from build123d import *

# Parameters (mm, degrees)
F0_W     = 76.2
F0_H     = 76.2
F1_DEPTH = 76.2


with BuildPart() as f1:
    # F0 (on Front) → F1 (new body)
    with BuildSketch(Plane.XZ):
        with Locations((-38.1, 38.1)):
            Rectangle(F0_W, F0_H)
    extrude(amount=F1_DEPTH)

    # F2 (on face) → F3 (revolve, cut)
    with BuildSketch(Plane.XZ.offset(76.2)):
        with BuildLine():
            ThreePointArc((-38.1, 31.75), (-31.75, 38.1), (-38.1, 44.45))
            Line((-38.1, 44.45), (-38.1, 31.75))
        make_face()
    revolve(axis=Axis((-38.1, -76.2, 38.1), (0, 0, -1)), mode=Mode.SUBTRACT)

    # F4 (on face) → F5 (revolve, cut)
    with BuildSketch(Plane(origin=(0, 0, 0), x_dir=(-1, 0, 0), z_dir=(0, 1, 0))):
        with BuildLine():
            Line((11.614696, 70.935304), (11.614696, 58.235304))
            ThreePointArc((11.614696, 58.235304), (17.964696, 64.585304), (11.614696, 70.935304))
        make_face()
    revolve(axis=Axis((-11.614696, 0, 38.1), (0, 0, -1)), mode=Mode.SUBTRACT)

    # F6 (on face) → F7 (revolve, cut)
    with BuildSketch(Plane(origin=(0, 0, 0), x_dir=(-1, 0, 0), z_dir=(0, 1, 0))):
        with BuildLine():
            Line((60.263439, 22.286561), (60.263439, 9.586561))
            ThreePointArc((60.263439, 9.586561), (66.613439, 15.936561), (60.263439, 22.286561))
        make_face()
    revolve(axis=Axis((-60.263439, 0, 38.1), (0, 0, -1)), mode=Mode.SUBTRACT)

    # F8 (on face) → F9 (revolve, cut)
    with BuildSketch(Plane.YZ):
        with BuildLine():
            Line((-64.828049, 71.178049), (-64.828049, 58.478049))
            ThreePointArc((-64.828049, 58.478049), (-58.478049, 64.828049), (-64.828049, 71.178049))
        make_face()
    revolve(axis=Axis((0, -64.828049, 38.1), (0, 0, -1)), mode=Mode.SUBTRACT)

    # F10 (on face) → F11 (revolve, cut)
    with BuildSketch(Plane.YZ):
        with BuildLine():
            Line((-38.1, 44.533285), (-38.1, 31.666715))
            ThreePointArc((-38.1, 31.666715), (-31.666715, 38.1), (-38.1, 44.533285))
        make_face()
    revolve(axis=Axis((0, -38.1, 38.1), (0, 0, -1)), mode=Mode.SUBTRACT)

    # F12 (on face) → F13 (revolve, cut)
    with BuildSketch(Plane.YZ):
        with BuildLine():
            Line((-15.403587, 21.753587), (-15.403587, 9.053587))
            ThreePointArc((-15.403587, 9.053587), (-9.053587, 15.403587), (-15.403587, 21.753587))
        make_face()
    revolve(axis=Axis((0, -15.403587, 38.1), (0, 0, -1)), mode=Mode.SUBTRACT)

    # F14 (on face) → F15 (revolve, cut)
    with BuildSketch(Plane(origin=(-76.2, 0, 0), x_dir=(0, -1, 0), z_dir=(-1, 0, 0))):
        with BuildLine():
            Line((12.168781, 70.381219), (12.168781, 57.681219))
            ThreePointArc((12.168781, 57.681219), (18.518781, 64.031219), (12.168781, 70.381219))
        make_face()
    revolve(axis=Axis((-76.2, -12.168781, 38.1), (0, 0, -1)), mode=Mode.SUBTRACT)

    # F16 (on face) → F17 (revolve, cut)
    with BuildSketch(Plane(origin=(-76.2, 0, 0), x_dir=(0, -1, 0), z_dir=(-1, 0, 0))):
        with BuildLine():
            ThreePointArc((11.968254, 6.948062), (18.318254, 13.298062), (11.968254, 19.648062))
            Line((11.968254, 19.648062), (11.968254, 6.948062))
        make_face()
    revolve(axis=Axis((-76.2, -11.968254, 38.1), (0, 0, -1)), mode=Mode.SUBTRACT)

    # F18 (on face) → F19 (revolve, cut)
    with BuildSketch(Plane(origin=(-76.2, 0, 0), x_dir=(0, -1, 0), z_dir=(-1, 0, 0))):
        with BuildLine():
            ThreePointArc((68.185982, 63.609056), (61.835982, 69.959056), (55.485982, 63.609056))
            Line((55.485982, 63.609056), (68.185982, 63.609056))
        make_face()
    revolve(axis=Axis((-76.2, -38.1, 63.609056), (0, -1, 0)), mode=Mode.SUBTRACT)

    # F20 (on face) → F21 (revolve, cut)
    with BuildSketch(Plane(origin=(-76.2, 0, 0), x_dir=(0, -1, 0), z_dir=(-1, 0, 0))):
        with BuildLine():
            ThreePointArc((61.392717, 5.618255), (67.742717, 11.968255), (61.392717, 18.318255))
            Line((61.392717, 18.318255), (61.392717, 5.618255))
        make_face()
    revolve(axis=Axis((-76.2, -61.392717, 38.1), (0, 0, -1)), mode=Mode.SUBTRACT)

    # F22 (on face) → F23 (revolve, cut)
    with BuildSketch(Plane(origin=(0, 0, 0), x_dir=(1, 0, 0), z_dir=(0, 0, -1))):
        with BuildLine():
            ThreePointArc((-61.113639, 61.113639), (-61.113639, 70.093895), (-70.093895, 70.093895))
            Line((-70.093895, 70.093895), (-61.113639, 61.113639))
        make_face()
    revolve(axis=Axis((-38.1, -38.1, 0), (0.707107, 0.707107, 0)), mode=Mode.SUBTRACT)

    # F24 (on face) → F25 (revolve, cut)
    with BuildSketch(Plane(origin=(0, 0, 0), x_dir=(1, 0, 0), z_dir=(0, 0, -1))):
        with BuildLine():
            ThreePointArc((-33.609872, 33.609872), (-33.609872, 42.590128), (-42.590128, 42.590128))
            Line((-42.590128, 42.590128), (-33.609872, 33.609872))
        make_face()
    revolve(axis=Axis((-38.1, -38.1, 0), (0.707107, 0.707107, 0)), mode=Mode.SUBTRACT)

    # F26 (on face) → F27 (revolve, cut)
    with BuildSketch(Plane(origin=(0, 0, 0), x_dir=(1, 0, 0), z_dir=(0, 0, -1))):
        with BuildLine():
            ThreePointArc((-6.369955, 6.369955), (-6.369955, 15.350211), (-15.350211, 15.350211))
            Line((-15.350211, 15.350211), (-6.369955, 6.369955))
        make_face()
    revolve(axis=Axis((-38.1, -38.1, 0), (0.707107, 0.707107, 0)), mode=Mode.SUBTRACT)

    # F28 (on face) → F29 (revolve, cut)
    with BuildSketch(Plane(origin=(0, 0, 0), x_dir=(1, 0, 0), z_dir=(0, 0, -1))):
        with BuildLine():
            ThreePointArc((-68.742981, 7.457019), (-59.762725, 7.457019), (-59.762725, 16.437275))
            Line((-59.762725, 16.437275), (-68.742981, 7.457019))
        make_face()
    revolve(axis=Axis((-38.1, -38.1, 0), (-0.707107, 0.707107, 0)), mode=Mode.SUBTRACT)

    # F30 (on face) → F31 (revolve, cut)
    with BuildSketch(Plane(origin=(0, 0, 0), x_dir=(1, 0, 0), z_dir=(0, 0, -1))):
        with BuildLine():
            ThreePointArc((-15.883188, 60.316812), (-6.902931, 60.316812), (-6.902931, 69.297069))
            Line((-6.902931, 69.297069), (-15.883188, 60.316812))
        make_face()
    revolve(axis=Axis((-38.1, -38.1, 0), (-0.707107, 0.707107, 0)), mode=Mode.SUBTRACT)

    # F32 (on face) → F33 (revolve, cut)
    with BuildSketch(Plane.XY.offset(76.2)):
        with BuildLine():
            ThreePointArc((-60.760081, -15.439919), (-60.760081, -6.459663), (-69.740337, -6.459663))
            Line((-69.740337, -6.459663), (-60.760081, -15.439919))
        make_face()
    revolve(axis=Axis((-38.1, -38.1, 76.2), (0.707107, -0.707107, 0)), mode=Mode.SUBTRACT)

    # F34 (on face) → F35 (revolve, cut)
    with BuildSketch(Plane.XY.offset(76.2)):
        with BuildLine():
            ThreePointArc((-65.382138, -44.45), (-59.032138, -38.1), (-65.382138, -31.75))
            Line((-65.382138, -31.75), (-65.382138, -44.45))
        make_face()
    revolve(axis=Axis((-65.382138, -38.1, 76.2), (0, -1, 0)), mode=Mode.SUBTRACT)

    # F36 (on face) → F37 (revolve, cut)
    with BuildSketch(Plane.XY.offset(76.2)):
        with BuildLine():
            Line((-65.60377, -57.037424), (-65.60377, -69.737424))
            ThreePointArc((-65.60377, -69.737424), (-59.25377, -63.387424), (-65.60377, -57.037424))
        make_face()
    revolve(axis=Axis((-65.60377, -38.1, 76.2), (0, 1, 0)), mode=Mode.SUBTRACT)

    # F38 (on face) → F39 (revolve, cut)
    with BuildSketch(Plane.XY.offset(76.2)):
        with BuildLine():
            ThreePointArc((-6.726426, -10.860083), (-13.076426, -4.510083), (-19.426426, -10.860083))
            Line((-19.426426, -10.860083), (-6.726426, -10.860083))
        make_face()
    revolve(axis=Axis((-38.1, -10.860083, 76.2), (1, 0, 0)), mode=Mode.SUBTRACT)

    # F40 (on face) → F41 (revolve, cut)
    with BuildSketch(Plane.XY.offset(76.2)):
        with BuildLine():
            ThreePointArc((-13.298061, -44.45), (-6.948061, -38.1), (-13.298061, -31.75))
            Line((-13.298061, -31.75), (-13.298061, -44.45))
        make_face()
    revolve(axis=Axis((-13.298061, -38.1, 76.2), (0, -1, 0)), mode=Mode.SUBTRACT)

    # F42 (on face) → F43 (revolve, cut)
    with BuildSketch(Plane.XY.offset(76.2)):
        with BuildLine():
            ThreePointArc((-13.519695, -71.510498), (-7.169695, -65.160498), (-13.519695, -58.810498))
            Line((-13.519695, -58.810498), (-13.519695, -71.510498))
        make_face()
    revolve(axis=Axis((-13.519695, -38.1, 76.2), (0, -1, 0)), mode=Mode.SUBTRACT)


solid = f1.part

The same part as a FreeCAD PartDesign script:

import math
import FreeCAD as App
import Part
import Sketcher
Q = App.Units.Quantity


def add_polygon(sketch, points):
    """Adds a closed chain of lines whose ends are joined by coincident constraints."""
    first, n = sketch.GeometryCount, len(points)
    for a, b in zip(points, points[1:] + points[:1]):
        sketch.addGeometry(Part.LineSegment(App.Vector(*a, 0), App.Vector(*b, 0)), False)
    for i in range(n):
        sketch.addConstraint(Sketcher.Constraint("Coincident", first + i, 2, first + (i + 1) % n, 1))

doc = App.newDocument("Part")
body = doc.addObject("PartDesign::Body", "Body")

sketch1 = body.newObject("Sketcher::SketchObject", "Sketch")
sketch1.AttachmentSupport = (doc.getObject("XZ_Plane"), [""])
sketch1.MapMode = "FlatFace"
add_polygon(sketch1, [(-76, 76), (-76, 0), (0, 0), (0, 76)])
sketch1.addConstraint(Sketcher.Constraint("Vertical", 0))
sketch1.addConstraint(Sketcher.Constraint("Horizontal", 1))
sketch1.addConstraint(Sketcher.Constraint("Vertical", 2))
sketch1.addConstraint(Sketcher.Constraint("Horizontal", 3))
sketch1.addConstraint(Sketcher.Constraint("Coincident", 1, 2, -1, 1))
sketch1.addConstraint(Sketcher.Constraint("Equal", 3, 0))
sketch1.addConstraint(Sketcher.Constraint("DistanceX", 1, 1, 1, 2, Q("3 in")))
pad1 = body.newObject("PartDesign::Pad", "Pad")
pad1.Profile = sketch1
pad1.Length = Q("3 in")

sketch2 = body.newObject("Sketcher::SketchObject", "Sketch001")
sketch2.AttachmentSupport = (doc.getObject("XZ_Plane"), [""])
sketch2.MapMode = "FlatFace"
sketch2.AttachmentOffset = App.Placement(App.Vector(0, 0, 3 * 25.4), App.Rotation())
sketch2.addGeometry(Part.ArcOfCircle(Part.Circle(App.Vector(-38, 38, 0), App.Vector(0, 0, 1), 6), math.radians(-90), math.radians(90)), False)
sketch2.addGeometry(Part.LineSegment(App.Vector(-38, 44, 0), App.Vector(-38, 32, 0)), False)
sketch2.addGeometry(Part.LineSegment(App.Vector(-38, 44, 0), App.Vector(-38, 32, 0)), True)
sketch2.addConstraint(Sketcher.Constraint("Coincident", 0, 1, 1, 2))
sketch2.addConstraint(Sketcher.Constraint("Coincident", 1, 1, 0, 2))
sketch2.addConstraint(Sketcher.Constraint("Vertical", 1))
sketch2.addConstraint(Sketcher.Constraint("Vertical", 2))
sketch2.addConstraint(Sketcher.Constraint("Coincident", 2, 1, 1, 1))
sketch2.addConstraint(Sketcher.Constraint("Equal", 1, 2))
sketch2.addConstraint(Sketcher.Constraint("Radius", 0, Q("0.25 in")))
sketch2.addConstraint(Sketcher.Constraint("DistanceX", 0, 3, -1, 1, Q("1.5 in")))
sketch2.addConstraint(Sketcher.Constraint("DistanceY", -1, 1, 0, 3, Q("1.5 in")))
sketch2.addConstraint(Sketcher.Constraint("DistanceX", 0, 1, -1, 1, Q("1.5 in")))
groove = body.newObject("PartDesign::Groove", "Groove")
groove.Profile = sketch2
groove.ReferenceAxis = (sketch2, ["Axis0"])
groove.Angle = 360

sketch3 = body.newObject("Sketcher::SketchObject", "Sketch002")
sketch3.AttachmentSupport = (doc.getObject("XZ_Plane"), [""])
sketch3.MapMode = "FlatFace"
sketch3.addGeometry(Part.LineSegment(App.Vector(-12, 71, 0), App.Vector(-12, 58, 0)), False)
sketch3.addGeometry(Part.ArcOfCircle(Part.Circle(App.Vector(-12, 65, 0), App.Vector(0, 0, 1), 6), math.radians(90), math.radians(270)), False)
sketch3.addGeometry(Part.LineSegment(App.Vector(-12, 71, 0), App.Vector(-12, 58, 0)), True)
sketch3.addConstraint(Sketcher.Constraint("Coincident", 0, 1, 1, 1))
sketch3.addConstraint(Sketcher.Constraint("Coincident", 1, 2, 0, 2))
sketch3.addConstraint(Sketcher.Constraint("Vertical", 0))
sketch3.addConstraint(Sketcher.Constraint("Vertical", 2))
sketch3.addConstraint(Sketcher.Constraint("Coincident", 2, 1, 0, 1))
sketch3.addConstraint(Sketcher.Constraint("Vertical", 1, 3, 0, 1))
sketch3.addConstraint(Sketcher.Constraint("Equal", 0, 2))
sketch3.addConstraint(Sketcher.Constraint("Radius", 1, Q("0.25 in")))
sketch3.addConstraint(Sketcher.Constraint("DistanceX", 1, 3, -1, 1, 11.614696))
sketch3.addConstraint(Sketcher.Constraint("DistanceY", -1, 1, 1, 3, 64.585304))
groove2 = body.newObject("PartDesign::Groove", "Groove001")
groove2.Profile = sketch3
groove2.ReferenceAxis = (sketch3, ["Axis0"])
groove2.Angle = 360

sketch4 = body.newObject("Sketcher::SketchObject", "Sketch003")
sketch4.AttachmentSupport = (doc.getObject("XZ_Plane"), [""])
sketch4.MapMode = "FlatFace"
sketch4.addGeometry(Part.LineSegment(App.Vector(-60, 22, 0), App.Vector(-60, 10, 0)), False)
sketch4.addGeometry(Part.ArcOfCircle(Part.Circle(App.Vector(-60, 16, 0), App.Vector(0, 0, 1), 6), math.radians(90), math.radians(270)), False)
sketch4.addGeometry(Part.LineSegment(App.Vector(-60, 22, 0), App.Vector(-60, 10, 0)), True)
sketch4.addConstraint(Sketcher.Constraint("Coincident", 0, 1, 1, 1))
sketch4.addConstraint(Sketcher.Constraint("Coincident", 1, 2, 0, 2))
sketch4.addConstraint(Sketcher.Constraint("Vertical", 0))
sketch4.addConstraint(Sketcher.Constraint("Vertical", 2))
sketch4.addConstraint(Sketcher.Constraint("Coincident", 2, 1, 0, 1))
sketch4.addConstraint(Sketcher.Constraint("Vertical", 1, 3, 0, 1))
sketch4.addConstraint(Sketcher.Constraint("Equal", 0, 2))
sketch4.addConstraint(Sketcher.Constraint("Radius", 1, Q("0.25 in")))
sketch4.addConstraint(Sketcher.Constraint("DistanceX", 1, 3, -1, 1, 60.263439))
sketch4.addConstraint(Sketcher.Constraint("DistanceY", -1, 1, 1, 3, 15.936561))
groove3 = body.newObject("PartDesign::Groove", "Groove002")
groove3.Profile = sketch4
groove3.ReferenceAxis = (sketch4, ["Axis0"])
groove3.Angle = 360

sketch5 = body.newObject("Sketcher::SketchObject", "Sketch004")
sketch5.AttachmentSupport = (doc.getObject("YZ_Plane"), [""])
sketch5.MapMode = "FlatFace"
sketch5.addGeometry(Part.LineSegment(App.Vector(-65, 71, 0), App.Vector(-65, 58, 0)), False)
sketch5.addGeometry(Part.ArcOfCircle(Part.Circle(App.Vector(-65, 65, 0), App.Vector(0, 0, 1), 6), math.radians(-90), math.radians(90)), False)
sketch5.addGeometry(Part.LineSegment(App.Vector(-65, 71, 0), App.Vector(-65, 58, 0)), True)
sketch5.addConstraint(Sketcher.Constraint("Coincident", 0, 1, 1, 2))
sketch5.addConstraint(Sketcher.Constraint("Coincident", 1, 1, 0, 2))
sketch5.addConstraint(Sketcher.Constraint("Vertical", 0))
sketch5.addConstraint(Sketcher.Constraint("Vertical", 2))
sketch5.addConstraint(Sketcher.Constraint("Coincident", 2, 1, 0, 1))
sketch5.addConstraint(Sketcher.Constraint("Vertical", 1, 3, 0, 1))
sketch5.addConstraint(Sketcher.Constraint("Equal", 0, 2))
sketch5.addConstraint(Sketcher.Constraint("Radius", 1, Q("0.25 in")))
sketch5.addConstraint(Sketcher.Constraint("DistanceX", 1, 3, -1, 1, 64.828049))
sketch5.addConstraint(Sketcher.Constraint("DistanceY", -1, 1, 1, 3, 64.828049))
groove4 = body.newObject("PartDesign::Groove", "Groove003")
groove4.Profile = sketch5
groove4.ReferenceAxis = (sketch5, ["Axis0"])
groove4.Angle = 360

sketch6 = body.newObject("Sketcher::SketchObject", "Sketch005")
sketch6.AttachmentSupport = (doc.getObject("YZ_Plane"), [""])
sketch6.MapMode = "FlatFace"
sketch6.addGeometry(Part.LineSegment(App.Vector(-38, 45, 0), App.Vector(-38, 32, 0)), False)
sketch6.addGeometry(Part.ArcOfCircle(Part.Circle(App.Vector(-38, 38, 0), App.Vector(0, 0, 1), 6), math.radians(-90), math.radians(90)), False)
sketch6.addGeometry(Part.LineSegment(App.Vector(-38, 45, 0), App.Vector(-38, 32, 0)), True)
sketch6.addConstraint(Sketcher.Constraint("Coincident", 0, 1, 1, 2))
sketch6.addConstraint(Sketcher.Constraint("Coincident", 1, 1, 0, 2))
sketch6.addConstraint(Sketcher.Constraint("Vertical", 0))
sketch6.addConstraint(Sketcher.Constraint("Vertical", 2))
sketch6.addConstraint(Sketcher.Constraint("Coincident", 2, 1, 0, 1))
sketch6.addConstraint(Sketcher.Constraint("Vertical", 1, 3, 0, 1))
sketch6.addConstraint(Sketcher.Constraint("Equal", 0, 2))
sketch6.addConstraint(Sketcher.Constraint("DistanceX", 1, 3, -1, 1, Q("1.5 in")))
sketch6.addConstraint(Sketcher.Constraint("DistanceY", -1, 1, 1, 3, Q("1.5 in")))
sketch6.addConstraint(Sketcher.Constraint("Radius", 1, 6.433285))
groove5 = body.newObject("PartDesign::Groove", "Groove004")
groove5.Profile = sketch6
groove5.ReferenceAxis = (sketch6, ["Axis0"])
groove5.Angle = 360

sketch7 = body.newObject("Sketcher::SketchObject", "Sketch006")
sketch7.AttachmentSupport = (doc.getObject("YZ_Plane"), [""])
sketch7.MapMode = "FlatFace"
sketch7.addGeometry(Part.LineSegment(App.Vector(-15, 22, 0), App.Vector(-15, 9, 0)), False)
sketch7.addGeometry(Part.ArcOfCircle(Part.Circle(App.Vector(-15, 15, 0), App.Vector(0, 0, 1), 6), math.radians(-90), math.radians(90)), False)
sketch7.addGeometry(Part.LineSegment(App.Vector(-15, 22, 0), App.Vector(-15, 9, 0)), True)
sketch7.addConstraint(Sketcher.Constraint("Coincident", 0, 1, 1, 2))
sketch7.addConstraint(Sketcher.Constraint("Coincident", 1, 1, 0, 2))
sketch7.addConstraint(Sketcher.Constraint("Vertical", 0))
sketch7.addConstraint(Sketcher.Constraint("Vertical", 2))
sketch7.addConstraint(Sketcher.Constraint("Coincident", 2, 1, 0, 1))
sketch7.addConstraint(Sketcher.Constraint("Vertical", 1, 3, 0, 1))
sketch7.addConstraint(Sketcher.Constraint("Equal", 0, 2))
sketch7.addConstraint(Sketcher.Constraint("Radius", 1, Q("0.25 in")))
sketch7.addConstraint(Sketcher.Constraint("DistanceX", 1, 3, -1, 1, 15.403587))
sketch7.addConstraint(Sketcher.Constraint("DistanceY", -1, 1, 1, 3, 15.403587))
groove6 = body.newObject("PartDesign::Groove", "Groove005")
groove6.Profile = sketch7
groove6.ReferenceAxis = (sketch7, ["Axis0"])
groove6.Angle = 360

sketch8 = body.newObject("Sketcher::SketchObject", "Sketch007")
sketch8.AttachmentSupport = (doc.getObject("YZ_Plane"), [""])
sketch8.MapMode = "FlatFace"
sketch8.AttachmentOffset = App.Placement(App.Vector(0, 0, -3 * 25.4), App.Rotation())
sketch8.addGeometry(Part.LineSegment(App.Vector(-12, 70, 0), App.Vector(-12, 58, 0)), False)
sketch8.addGeometry(Part.ArcOfCircle(Part.Circle(App.Vector(-12, 64, 0), App.Vector(0, 0, 1), 6), math.radians(90), math.radians(270)), False)
sketch8.addGeometry(Part.LineSegment(App.Vector(-12, 70, 0), App.Vector(-12, 58, 0)), True)
sketch8.addConstraint(Sketcher.Constraint("Coincident", 0, 1, 1, 1))
sketch8.addConstraint(Sketcher.Constraint("Coincident", 1, 2, 0, 2))
sketch8.addConstraint(Sketcher.Constraint("Vertical", 0))
sketch8.addConstraint(Sketcher.Constraint("Vertical", 2))
sketch8.addConstraint(Sketcher.Constraint("Coincident", 2, 1, 0, 1))
sketch8.addConstraint(Sketcher.Constraint("Vertical", 1, 3, 0, 1))
sketch8.addConstraint(Sketcher.Constraint("Equal", 0, 2))
sketch8.addConstraint(Sketcher.Constraint("Radius", 1, Q("0.25 in")))
sketch8.addConstraint(Sketcher.Constraint("DistanceX", 1, 3, -1, 1, 12.168781))
sketch8.addConstraint(Sketcher.Constraint("DistanceY", -1, 1, 1, 3, 64.031219))
groove7 = body.newObject("PartDesign::Groove", "Groove006")
groove7.Profile = sketch8
groove7.ReferenceAxis = (sketch8, ["Axis0"])
groove7.Angle = 360

sketch9 = body.newObject("Sketcher::SketchObject", "Sketch008")
sketch9.AttachmentSupport = (doc.getObject("YZ_Plane"), [""])
sketch9.MapMode = "FlatFace"
sketch9.AttachmentOffset = App.Placement(App.Vector(0, 0, -3 * 25.4), App.Rotation())
sketch9.addGeometry(Part.ArcOfCircle(Part.Circle(App.Vector(-12, 13, 0), App.Vector(0, 0, 1), 6), math.radians(90), math.radians(270)), False)
sketch9.addGeometry(Part.LineSegment(App.Vector(-12, 20, 0), App.Vector(-12, 7, 0)), False)
sketch9.addGeometry(Part.LineSegment(App.Vector(-12, 20, 0), App.Vector(-12, 7, 0)), True)
sketch9.addConstraint(Sketcher.Constraint("Coincident", 0, 1, 1, 1))
sketch9.addConstraint(Sketcher.Constraint("Coincident", 1, 2, 0, 2))
sketch9.addConstraint(Sketcher.Constraint("Vertical", 1))
sketch9.addConstraint(Sketcher.Constraint("Vertical", 2))
sketch9.addConstraint(Sketcher.Constraint("Coincident", 2, 1, 0, 1))
sketch9.addConstraint(Sketcher.Constraint("Equal", 1, 2))
sketch9.addConstraint(Sketcher.Constraint("Radius", 0, Q("0.25 in")))
sketch9.addConstraint(Sketcher.Constraint("DistanceY", -1, 1, 0, 1, 19.648062))
sketch9.addConstraint(Sketcher.Constraint("DistanceX", 0, 3, -1, 1, 11.968254))
sketch9.addConstraint(Sketcher.Constraint("DistanceX", 0, 1, -1, 1, 11.968254))
groove8 = body.newObject("PartDesign::Groove", "Groove007")
groove8.Profile = sketch9
groove8.ReferenceAxis = (sketch9, ["Axis0"])
groove8.Angle = 360

sketch10 = body.newObject("Sketcher::SketchObject", "Sketch009")
sketch10.AttachmentSupport = (doc.getObject("YZ_Plane"), [""])
sketch10.MapMode = "FlatFace"
sketch10.AttachmentOffset = App.Placement(App.Vector(0, 0, -3 * 25.4), App.Rotation())
sketch10.addGeometry(Part.ArcOfCircle(Part.Circle(App.Vector(-62, 64, 0), App.Vector(0, 0, 1), 6), math.radians(0), math.radians(180)), False)
sketch10.addGeometry(Part.LineSegment(App.Vector(-55, 64, 0), App.Vector(-68, 64, 0)), False)
sketch10.addGeometry(Part.LineSegment(App.Vector(-55, 64, 0), App.Vector(-68, 64, 0)), True)
sketch10.addConstraint(Sketcher.Constraint("Coincident", 0, 1, 1, 1))
sketch10.addConstraint(Sketcher.Constraint("Coincident", 1, 2, 0, 2))
sketch10.addConstraint(Sketcher.Constraint("Horizontal", 1))
sketch10.addConstraint(Sketcher.Constraint("Horizontal", 2))
sketch10.addConstraint(Sketcher.Constraint("Coincident", 2, 1, 0, 1))
sketch10.addConstraint(Sketcher.Constraint("Equal", 1, 2))
sketch10.addConstraint(Sketcher.Constraint("Radius", 0, Q("0.25 in")))
sketch10.addConstraint(Sketcher.Constraint("DistanceX", 1, 2, -1, 1, 68.185982))
sketch10.addConstraint(Sketcher.Constraint("DistanceY", -1, 1, 0, 3, 63.609056))
sketch10.addConstraint(Sketcher.Constraint("DistanceY", -1, 1, 0, 1, 63.609056))
groove9 = body.newObject("PartDesign::Groove", "Groove008")
groove9.Profile = sketch10
groove9.ReferenceAxis = (sketch10, ["Axis0"])
groove9.Angle = 360

sketch11 = body.newObject("Sketcher::SketchObject", "Sketch010")
sketch11.AttachmentSupport = (doc.getObject("YZ_Plane"), [""])
sketch11.MapMode = "FlatFace"
sketch11.AttachmentOffset = App.Placement(App.Vector(0, 0, -3 * 25.4), App.Rotation())
sketch11.addGeometry(Part.ArcOfCircle(Part.Circle(App.Vector(-61, 12, 0), App.Vector(0, 0, 1), 6), math.radians(90), math.radians(270)), False)
sketch11.addGeometry(Part.LineSegment(App.Vector(-61, 18, 0), App.Vector(-61, 6, 0)), False)
sketch11.addGeometry(Part.LineSegment(App.Vector(-61, 18, 0), App.Vector(-61, 6, 0)), True)
sketch11.addConstraint(Sketcher.Constraint("Coincident", 0, 1, 1, 1))
sketch11.addConstraint(Sketcher.Constraint("Coincident", 1, 2, 0, 2))
sketch11.addConstraint(Sketcher.Constraint("Vertical", 1))
sketch11.addConstraint(Sketcher.Constraint("Vertical", 2))
sketch11.addConstraint(Sketcher.Constraint("Coincident", 2, 1, 0, 1))
sketch11.addConstraint(Sketcher.Constraint("Equal", 1, 2))
sketch11.addConstraint(Sketcher.Constraint("Radius", 0, Q("0.25 in")))
sketch11.addConstraint(Sketcher.Constraint("DistanceX", 0, 3, -1, 1, 61.392717))
sketch11.addConstraint(Sketcher.Constraint("DistanceY", -1, 1, 0, 3, 11.968255))
sketch11.addConstraint(Sketcher.Constraint("DistanceX", 0, 1, -1, 1, 61.392717))
groove10 = body.newObject("PartDesign::Groove", "Groove009")
groove10.Profile = sketch11
groove10.ReferenceAxis = (sketch11, ["Axis0"])
groove10.Angle = 360

sketch12 = body.newObject("Sketcher::SketchObject", "Sketch011")
sketch12.AttachmentSupport = (doc.getObject("XY_Plane"), [""])
sketch12.MapMode = "FlatFace"
sketch12.addGeometry(Part.ArcOfCircle(Part.Circle(App.Vector(-66, -66, 0), App.Vector(0, 0, 1), 6), math.radians(-135), math.radians(45)), False)
sketch12.addGeometry(Part.LineSegment(App.Vector(-70, -70, 0), App.Vector(-61, -61, 0)), False)
sketch12.addGeometry(Part.LineSegment(App.Vector(-70, -70, 0), App.Vector(-61, -61, 0)), True)
sketch12.addConstraint(Sketcher.Constraint("Coincident", 0, 1, 1, 1))
sketch12.addConstraint(Sketcher.Constraint("Coincident", 1, 2, 0, 2))
sketch12.addConstraint(Sketcher.Constraint("Coincident", 2, 1, 0, 1))
sketch12.addConstraint(Sketcher.Constraint("Coincident", 2, 2, 1, 2))
sketch12.addConstraint(Sketcher.Constraint("Radius", 0, Q("0.25 in")))
sketch12.addConstraint(Sketcher.Constraint("Angle", 1, Q("45 deg")))
sketch12.addConstraint(Sketcher.Constraint("DistanceX", 1, 2, -1, 1, 61.113639))
sketch12.addConstraint(Sketcher.Constraint("DistanceY", 1, 2, -1, 1, 61.113639))
sketch12.addConstraint(Sketcher.Constraint("DistanceX", 0, 3, 1, 2, 4.490128))
groove11 = body.newObject("PartDesign::Groove", "Groove010")
groove11.Profile = sketch12
groove11.ReferenceAxis = (sketch12, ["Axis0"])
groove11.Angle = 360

sketch13 = body.newObject("Sketcher::SketchObject", "Sketch012")
sketch13.AttachmentSupport = (doc.getObject("XY_Plane"), [""])
sketch13.MapMode = "FlatFace"
sketch13.addGeometry(Part.ArcOfCircle(Part.Circle(App.Vector(-38, -38, 0), App.Vector(0, 0, 1), 6), math.radians(-135), math.radians(45)), False)
sketch13.addGeometry(Part.LineSegment(App.Vector(-43, -43, 0), App.Vector(-34, -34, 0)), False)
sketch13.addGeometry(Part.LineSegment(App.Vector(-43, -43, 0), App.Vector(-34, -34, 0)), True)
sketch13.addConstraint(Sketcher.Constraint("Coincident", 0, 1, 1, 1))
sketch13.addConstraint(Sketcher.Constraint("Coincident", 1, 2, 0, 2))
sketch13.addConstraint(Sketcher.Constraint("Coincident", 2, 1, 0, 1))
sketch13.addConstraint(Sketcher.Constraint("Coincident", 2, 2, 1, 2))
sketch13.addConstraint(Sketcher.Constraint("Radius", 0, Q("0.25 in")))
sketch13.addConstraint(Sketcher.Constraint("Angle", 1, Q("45 deg")))
sketch13.addConstraint(Sketcher.Constraint("DistanceX", 0, 3, -1, 1, Q("1.5 in")))
sketch13.addConstraint(Sketcher.Constraint("DistanceY", 0, 3, -1, 1, Q("1.5 in")))
sketch13.addConstraint(Sketcher.Constraint("DistanceX", 0, 1, -1, 1, 42.590128))
groove12 = body.newObject("PartDesign::Groove", "Groove011")
groove12.Profile = sketch13
groove12.ReferenceAxis = (sketch13, ["Axis0"])
groove12.Angle = 360

sketch14 = body.newObject("Sketcher::SketchObject", "Sketch013")
sketch14.AttachmentSupport = (doc.getObject("XY_Plane"), [""])
sketch14.MapMode = "FlatFace"
sketch14.addGeometry(Part.ArcOfCircle(Part.Circle(App.Vector(-11, -11, 0), App.Vector(0, 0, 1), 6), math.radians(-135), math.radians(45)), False)
sketch14.addGeometry(Part.LineSegment(App.Vector(-15, -15, 0), App.Vector(-6, -6, 0)), False)
sketch14.addGeometry(Part.LineSegment(App.Vector(-15, -15, 0), App.Vector(-6, -6, 0)), True)
sketch14.addConstraint(Sketcher.Constraint("Coincident", 0, 1, 1, 1))
sketch14.addConstraint(Sketcher.Constraint("Coincident", 1, 2, 0, 2))
sketch14.addConstraint(Sketcher.Constraint("Coincident", 2, 1, 0, 1))
sketch14.addConstraint(Sketcher.Constraint("Coincident", 2, 2, 1, 2))
sketch14.addConstraint(Sketcher.Constraint("Radius", 0, Q("0.25 in")))
sketch14.addConstraint(Sketcher.Constraint("Angle", 1, Q("45 deg")))
sketch14.addConstraint(Sketcher.Constraint("DistanceX", 0, 1, -1, 1, 15.350211))
sketch14.addConstraint(Sketcher.Constraint("DistanceY", 0, 1, -1, 1, 15.350211))
sketch14.addConstraint(Sketcher.Constraint("DistanceX", 2, 1, 0, 3, 4.490128))
groove13 = body.newObject("PartDesign::Groove", "Groove012")
groove13.Profile = sketch14
groove13.ReferenceAxis = (sketch14, ["Axis0"])
groove13.Angle = 360

sketch15 = body.newObject("Sketcher::SketchObject", "Sketch014")
sketch15.AttachmentSupport = (doc.getObject("XY_Plane"), [""])
sketch15.MapMode = "FlatFace"
sketch15.addGeometry(Part.ArcOfCircle(Part.Circle(App.Vector(-64, -12, 0), App.Vector(0, 0, 1), 6), math.radians(-45), math.radians(135)), False)
sketch15.addGeometry(Part.LineSegment(App.Vector(-60, -16, 0), App.Vector(-69, -7, 0)), False)
sketch15.addGeometry(Part.LineSegment(App.Vector(-60, -16, 0), App.Vector(-69, -7, 0)), True)
sketch15.addConstraint(Sketcher.Constraint("Coincident", 0, 1, 1, 1))
sketch15.addConstraint(Sketcher.Constraint("Coincident", 1, 2, 0, 2))
sketch15.addConstraint(Sketcher.Constraint("Coincident", 2, 1, 0, 1))
sketch15.addConstraint(Sketcher.Constraint("Coincident", 2, 2, 1, 2))
sketch15.addConstraint(Sketcher.Constraint("Radius", 0, Q("0.25 in")))
sketch15.addConstraint(Sketcher.Constraint("Angle", 1, Q("135 deg")))
sketch15.addConstraint(Sketcher.Constraint("DistanceX", 1, 2, -1, 1, 68.742981))
sketch15.addConstraint(Sketcher.Constraint("DistanceY", 1, 2, -1, 1, 7.457019))
sketch15.addConstraint(Sketcher.Constraint("DistanceX", 0, 3, 2, 1, 4.490128))
groove14 = body.newObject("PartDesign::Groove", "Groove013")
groove14.Profile = sketch15
groove14.ReferenceAxis = (sketch15, ["Axis0"])
groove14.Angle = 360

sketch16 = body.newObject("Sketcher::SketchObject", "Sketch015")
sketch16.AttachmentSupport = (doc.getObject("XY_Plane"), [""])
sketch16.MapMode = "FlatFace"
sketch16.addGeometry(Part.ArcOfCircle(Part.Circle(App.Vector(-11, -65, 0), App.Vector(0, 0, 1), 6), math.radians(-45), math.radians(135)), False)
sketch16.addGeometry(Part.LineSegment(App.Vector(-7, -69, 0), App.Vector(-16, -60, 0)), False)
sketch16.addGeometry(Part.LineSegment(App.Vector(-7, -69, 0), App.Vector(-16, -60, 0)), True)
sketch16.addConstraint(Sketcher.Constraint("Coincident", 0, 1, 1, 1))
sketch16.addConstraint(Sketcher.Constraint("Coincident", 1, 2, 0, 2))
sketch16.addConstraint(Sketcher.Constraint("Coincident", 2, 1, 0, 1))
sketch16.addConstraint(Sketcher.Constraint("Coincident", 2, 2, 1, 2))
sketch16.addConstraint(Sketcher.Constraint("Radius", 0, Q("0.25 in")))
sketch16.addConstraint(Sketcher.Constraint("Angle", 1, Q("135 deg")))
sketch16.addConstraint(Sketcher.Constraint("DistanceX", 0, 3, -1, 1, 11.393059))
sketch16.addConstraint(Sketcher.Constraint("DistanceY", 0, 3, -1, 1, 64.80694))
sketch16.addConstraint(Sketcher.Constraint("DistanceX", 0, 1, -1, 1, 6.902931))
groove15 = body.newObject("PartDesign::Groove", "Groove014")
groove15.Profile = sketch16
groove15.ReferenceAxis = (sketch16, ["Axis0"])
groove15.Angle = 360

sketch17 = body.newObject("Sketcher::SketchObject", "Sketch016")
sketch17.AttachmentSupport = (doc.getObject("XY_Plane"), [""])
sketch17.MapMode = "FlatFace"
sketch17.AttachmentOffset = App.Placement(App.Vector(0, 0, 3 * 25.4), App.Rotation())
sketch17.addGeometry(Part.ArcOfCircle(Part.Circle(App.Vector(-65, -11, 0), App.Vector(0, 0, 1), 6), math.radians(-45), math.radians(135)), False)
sketch17.addGeometry(Part.LineSegment(App.Vector(-70, -6, 0), App.Vector(-61, -15, 0)), False)
sketch17.addGeometry(Part.LineSegment(App.Vector(-70, -6, 0), App.Vector(-61, -15, 0)), True)
sketch17.addConstraint(Sketcher.Constraint("Coincident", 0, 1, 1, 2))
sketch17.addConstraint(Sketcher.Constraint("Coincident", 1, 1, 0, 2))
sketch17.addConstraint(Sketcher.Constraint("Coincident", 2, 1, 1, 1))
sketch17.addConstraint(Sketcher.Constraint("Coincident", 2, 2, 0, 1))
sketch17.addConstraint(Sketcher.Constraint("Radius", 0, Q("0.25 in")))
sketch17.addConstraint(Sketcher.Constraint("Angle", 1, Q("-45 deg")))
sketch17.addConstraint(Sketcher.Constraint("DistanceX", 0, 3, -1, 1, 65.250209))
sketch17.addConstraint(Sketcher.Constraint("DistanceY", 0, 3, -1, 1, 10.949791))
sketch17.addConstraint(Sketcher.Constraint("DistanceX", 0, 1, -1, 1, 60.760081))
groove16 = body.newObject("PartDesign::Groove", "Groove015")
groove16.Profile = sketch17
groove16.ReferenceAxis = (sketch17, ["Axis0"])
groove16.Angle = 360

sketch18 = body.newObject("Sketcher::SketchObject", "Sketch017")
sketch18.AttachmentSupport = (doc.getObject("XY_Plane"), [""])
sketch18.MapMode = "FlatFace"
sketch18.AttachmentOffset = App.Placement(App.Vector(0, 0, 3 * 25.4), App.Rotation())
sketch18.addGeometry(Part.ArcOfCircle(Part.Circle(App.Vector(-65, -38, 0), App.Vector(0, 0, 1), 6), math.radians(-90), math.radians(90)), False)
sketch18.addGeometry(Part.LineSegment(App.Vector(-65, -32, 0), App.Vector(-65, -44, 0)), False)
sketch18.addGeometry(Part.LineSegment(App.Vector(-65, -32, 0), App.Vector(-65, -44, 0)), True)
sketch18.addConstraint(Sketcher.Constraint("Coincident", 0, 1, 1, 2))
sketch18.addConstraint(Sketcher.Constraint("Coincident", 1, 1, 0, 2))
sketch18.addConstraint(Sketcher.Constraint("Vertical", 1))
sketch18.addConstraint(Sketcher.Constraint("Vertical", 2))
sketch18.addConstraint(Sketcher.Constraint("Coincident", 2, 1, 1, 1))
sketch18.addConstraint(Sketcher.Constraint("Equal", 1, 2))
sketch18.addConstraint(Sketcher.Constraint("Radius", 0, Q("0.25 in")))
sketch18.addConstraint(Sketcher.Constraint("DistanceY", 0, 3, -1, 1, Q("1.5 in")))
sketch18.addConstraint(Sketcher.Constraint("DistanceX", 0, 3, -1, 1, Q("2.5740999 in")))
sketch18.addConstraint(Sketcher.Constraint("DistanceX", 0, 1, -1, 1, Q("2.5740999 in")))
groove17 = body.newObject("PartDesign::Groove", "Groove016")
groove17.Profile = sketch18
groove17.ReferenceAxis = (sketch18, ["Axis0"])
groove17.Angle = 360

sketch19 = body.newObject("Sketcher::SketchObject", "Sketch018")
sketch19.AttachmentSupport = (doc.getObject("XY_Plane"), [""])
sketch19.MapMode = "FlatFace"
sketch19.AttachmentOffset = App.Placement(App.Vector(0, 0, 3 * 25.4), App.Rotation())
sketch19.addGeometry(Part.LineSegment(App.Vector(-66, -57, 0), App.Vector(-66, -70, 0)), False)
sketch19.addGeometry(Part.ArcOfCircle(Part.Circle(App.Vector(-66, -63, 0), App.Vector(0, 0, 1), 6), math.radians(-90), math.radians(90)), False)
sketch19.addGeometry(Part.LineSegment(App.Vector(-66, -70, 0), App.Vector(-66, -57, 0)), True)
sketch19.addConstraint(Sketcher.Constraint("Coincident", 0, 1, 1, 2))
sketch19.addConstraint(Sketcher.Constraint("Coincident", 1, 1, 0, 2))
sketch19.addConstraint(Sketcher.Constraint("Vertical", 0))
sketch19.addConstraint(Sketcher.Constraint("Vertical", 2))
sketch19.addConstraint(Sketcher.Constraint("Coincident", 2, 1, 1, 1))
sketch19.addConstraint(Sketcher.Constraint("Vertical", 1, 3, 0, 1))
sketch19.addConstraint(Sketcher.Constraint("Equal", 0, 2))
sketch19.addConstraint(Sketcher.Constraint("Radius", 1, Q("0.25 in")))
sketch19.addConstraint(Sketcher.Constraint("DistanceX", 1, 3, -1, 1, 65.60377))
sketch19.addConstraint(Sketcher.Constraint("DistanceY", 1, 3, -1, 1, 63.387424))
groove18 = body.newObject("PartDesign::Groove", "Groove017")
groove18.Profile = sketch19
groove18.ReferenceAxis = (sketch19, ["Axis0"])
groove18.Angle = 360

sketch20 = body.newObject("Sketcher::SketchObject", "Sketch019")
sketch20.AttachmentSupport = (doc.getObject("XY_Plane"), [""])
sketch20.MapMode = "FlatFace"
sketch20.AttachmentOffset = App.Placement(App.Vector(0, 0, 3 * 25.4), App.Rotation())
sketch20.addGeometry(Part.ArcOfCircle(Part.Circle(App.Vector(-13, -11, 0), App.Vector(0, 0, 1), 6), math.radians(0), math.radians(180)), False)
sketch20.addGeometry(Part.LineSegment(App.Vector(-19, -11, 0), App.Vector(-7, -11, 0)), False)
sketch20.addGeometry(Part.LineSegment(App.Vector(-19, -11, 0), App.Vector(-7, -11, 0)), True)
sketch20.addConstraint(Sketcher.Constraint("Coincident", 0, 1, 1, 2))
sketch20.addConstraint(Sketcher.Constraint("Coincident", 1, 1, 0, 2))
sketch20.addConstraint(Sketcher.Constraint("Horizontal", 1))
sketch20.addConstraint(Sketcher.Constraint("Horizontal", 2))
sketch20.addConstraint(Sketcher.Constraint("Coincident", 2, 1, 1, 1))
sketch20.addConstraint(Sketcher.Constraint("Equal", 1, 2))
sketch20.addConstraint(Sketcher.Constraint("Radius", 0, Q("0.25 in")))
sketch20.addConstraint(Sketcher.Constraint("DistanceX", 0, 3, -1, 1, 13.076426))
sketch20.addConstraint(Sketcher.Constraint("DistanceY", 0, 3, -1, 1, 10.860083))
sketch20.addConstraint(Sketcher.Constraint("DistanceY", 0, 1, -1, 1, 10.860083))
groove19 = body.newObject("PartDesign::Groove", "Groove018")
groove19.Profile = sketch20
groove19.ReferenceAxis = (sketch20, ["Axis0"])
groove19.Angle = 360

sketch21 = body.newObject("Sketcher::SketchObject", "Sketch020")
sketch21.AttachmentSupport = (doc.getObject("XY_Plane"), [""])
sketch21.MapMode = "FlatFace"
sketch21.AttachmentOffset = App.Placement(App.Vector(0, 0, 3 * 25.4), App.Rotation())
sketch21.addGeometry(Part.ArcOfCircle(Part.Circle(App.Vector(-13, -38, 0), App.Vector(0, 0, 1), 6), math.radians(-90), math.radians(90)), False)
sketch21.addGeometry(Part.LineSegment(App.Vector(-13, -32, 0), App.Vector(-13, -44, 0)), False)
sketch21.addGeometry(Part.LineSegment(App.Vector(-13, -32, 0), App.Vector(-13, -44, 0)), True)
sketch21.addConstraint(Sketcher.Constraint("Coincident", 0, 1, 1, 2))
sketch21.addConstraint(Sketcher.Constraint("Coincident", 1, 1, 0, 2))
sketch21.addConstraint(Sketcher.Constraint("Vertical", 1))
sketch21.addConstraint(Sketcher.Constraint("Vertical", 2))
sketch21.addConstraint(Sketcher.Constraint("Coincident", 2, 1, 1, 1))
sketch21.addConstraint(Sketcher.Constraint("Equal", 1, 2))
sketch21.addConstraint(Sketcher.Constraint("Radius", 0, Q("0.25 in")))
sketch21.addConstraint(Sketcher.Constraint("DistanceY", 0, 3, -1, 1, Q("1.5 in")))
sketch21.addConstraint(Sketcher.Constraint("DistanceX", 0, 3, -1, 1, 13.298061))
sketch21.addConstraint(Sketcher.Constraint("DistanceX", 0, 1, -1, 1, 13.298061))
groove20 = body.newObject("PartDesign::Groove", "Groove019")
groove20.Profile = sketch21
groove20.ReferenceAxis = (sketch21, ["Axis0"])
groove20.Angle = 360

sketch22 = body.newObject("Sketcher::SketchObject", "Sketch021")
sketch22.AttachmentSupport = (doc.getObject("XY_Plane"), [""])
sketch22.MapMode = "FlatFace"
sketch22.AttachmentOffset = App.Placement(App.Vector(0, 0, 3 * 25.4), App.Rotation())
sketch22.addGeometry(Part.ArcOfCircle(Part.Circle(App.Vector(-14, -65, 0), App.Vector(0, 0, 1), 6), math.radians(-90), math.radians(90)), False)
sketch22.addGeometry(Part.LineSegment(App.Vector(-14, -59, 0), App.Vector(-14, -72, 0)), False)
sketch22.addGeometry(Part.LineSegment(App.Vector(-14, -59, 0), App.Vector(-14, -72, 0)), True)
sketch22.addConstraint(Sketcher.Constraint("Coincident", 0, 1, 1, 2))
sketch22.addConstraint(Sketcher.Constraint("Coincident", 1, 1, 0, 2))
sketch22.addConstraint(Sketcher.Constraint("Vertical", 1))
sketch22.addConstraint(Sketcher.Constraint("Vertical", 2))
sketch22.addConstraint(Sketcher.Constraint("Coincident", 2, 1, 1, 1))
sketch22.addConstraint(Sketcher.Constraint("Equal", 1, 2))
sketch22.addConstraint(Sketcher.Constraint("Radius", 0, Q("0.25 in")))
sketch22.addConstraint(Sketcher.Constraint("DistanceY", 0, 3, -1, 1, 65.160498))
sketch22.addConstraint(Sketcher.Constraint("DistanceX", 0, 3, -1, 1, 13.519695))
sketch22.addConstraint(Sketcher.Constraint("DistanceX", 0, 1, -1, 1, 13.519695))
groove21 = body.newObject("PartDesign::Groove", "Groove020")
groove21.Profile = sketch22
groove21.ReferenceAxis = (sketch22, ["Axis0"])
groove21.Angle = 360

doc.recompute()
